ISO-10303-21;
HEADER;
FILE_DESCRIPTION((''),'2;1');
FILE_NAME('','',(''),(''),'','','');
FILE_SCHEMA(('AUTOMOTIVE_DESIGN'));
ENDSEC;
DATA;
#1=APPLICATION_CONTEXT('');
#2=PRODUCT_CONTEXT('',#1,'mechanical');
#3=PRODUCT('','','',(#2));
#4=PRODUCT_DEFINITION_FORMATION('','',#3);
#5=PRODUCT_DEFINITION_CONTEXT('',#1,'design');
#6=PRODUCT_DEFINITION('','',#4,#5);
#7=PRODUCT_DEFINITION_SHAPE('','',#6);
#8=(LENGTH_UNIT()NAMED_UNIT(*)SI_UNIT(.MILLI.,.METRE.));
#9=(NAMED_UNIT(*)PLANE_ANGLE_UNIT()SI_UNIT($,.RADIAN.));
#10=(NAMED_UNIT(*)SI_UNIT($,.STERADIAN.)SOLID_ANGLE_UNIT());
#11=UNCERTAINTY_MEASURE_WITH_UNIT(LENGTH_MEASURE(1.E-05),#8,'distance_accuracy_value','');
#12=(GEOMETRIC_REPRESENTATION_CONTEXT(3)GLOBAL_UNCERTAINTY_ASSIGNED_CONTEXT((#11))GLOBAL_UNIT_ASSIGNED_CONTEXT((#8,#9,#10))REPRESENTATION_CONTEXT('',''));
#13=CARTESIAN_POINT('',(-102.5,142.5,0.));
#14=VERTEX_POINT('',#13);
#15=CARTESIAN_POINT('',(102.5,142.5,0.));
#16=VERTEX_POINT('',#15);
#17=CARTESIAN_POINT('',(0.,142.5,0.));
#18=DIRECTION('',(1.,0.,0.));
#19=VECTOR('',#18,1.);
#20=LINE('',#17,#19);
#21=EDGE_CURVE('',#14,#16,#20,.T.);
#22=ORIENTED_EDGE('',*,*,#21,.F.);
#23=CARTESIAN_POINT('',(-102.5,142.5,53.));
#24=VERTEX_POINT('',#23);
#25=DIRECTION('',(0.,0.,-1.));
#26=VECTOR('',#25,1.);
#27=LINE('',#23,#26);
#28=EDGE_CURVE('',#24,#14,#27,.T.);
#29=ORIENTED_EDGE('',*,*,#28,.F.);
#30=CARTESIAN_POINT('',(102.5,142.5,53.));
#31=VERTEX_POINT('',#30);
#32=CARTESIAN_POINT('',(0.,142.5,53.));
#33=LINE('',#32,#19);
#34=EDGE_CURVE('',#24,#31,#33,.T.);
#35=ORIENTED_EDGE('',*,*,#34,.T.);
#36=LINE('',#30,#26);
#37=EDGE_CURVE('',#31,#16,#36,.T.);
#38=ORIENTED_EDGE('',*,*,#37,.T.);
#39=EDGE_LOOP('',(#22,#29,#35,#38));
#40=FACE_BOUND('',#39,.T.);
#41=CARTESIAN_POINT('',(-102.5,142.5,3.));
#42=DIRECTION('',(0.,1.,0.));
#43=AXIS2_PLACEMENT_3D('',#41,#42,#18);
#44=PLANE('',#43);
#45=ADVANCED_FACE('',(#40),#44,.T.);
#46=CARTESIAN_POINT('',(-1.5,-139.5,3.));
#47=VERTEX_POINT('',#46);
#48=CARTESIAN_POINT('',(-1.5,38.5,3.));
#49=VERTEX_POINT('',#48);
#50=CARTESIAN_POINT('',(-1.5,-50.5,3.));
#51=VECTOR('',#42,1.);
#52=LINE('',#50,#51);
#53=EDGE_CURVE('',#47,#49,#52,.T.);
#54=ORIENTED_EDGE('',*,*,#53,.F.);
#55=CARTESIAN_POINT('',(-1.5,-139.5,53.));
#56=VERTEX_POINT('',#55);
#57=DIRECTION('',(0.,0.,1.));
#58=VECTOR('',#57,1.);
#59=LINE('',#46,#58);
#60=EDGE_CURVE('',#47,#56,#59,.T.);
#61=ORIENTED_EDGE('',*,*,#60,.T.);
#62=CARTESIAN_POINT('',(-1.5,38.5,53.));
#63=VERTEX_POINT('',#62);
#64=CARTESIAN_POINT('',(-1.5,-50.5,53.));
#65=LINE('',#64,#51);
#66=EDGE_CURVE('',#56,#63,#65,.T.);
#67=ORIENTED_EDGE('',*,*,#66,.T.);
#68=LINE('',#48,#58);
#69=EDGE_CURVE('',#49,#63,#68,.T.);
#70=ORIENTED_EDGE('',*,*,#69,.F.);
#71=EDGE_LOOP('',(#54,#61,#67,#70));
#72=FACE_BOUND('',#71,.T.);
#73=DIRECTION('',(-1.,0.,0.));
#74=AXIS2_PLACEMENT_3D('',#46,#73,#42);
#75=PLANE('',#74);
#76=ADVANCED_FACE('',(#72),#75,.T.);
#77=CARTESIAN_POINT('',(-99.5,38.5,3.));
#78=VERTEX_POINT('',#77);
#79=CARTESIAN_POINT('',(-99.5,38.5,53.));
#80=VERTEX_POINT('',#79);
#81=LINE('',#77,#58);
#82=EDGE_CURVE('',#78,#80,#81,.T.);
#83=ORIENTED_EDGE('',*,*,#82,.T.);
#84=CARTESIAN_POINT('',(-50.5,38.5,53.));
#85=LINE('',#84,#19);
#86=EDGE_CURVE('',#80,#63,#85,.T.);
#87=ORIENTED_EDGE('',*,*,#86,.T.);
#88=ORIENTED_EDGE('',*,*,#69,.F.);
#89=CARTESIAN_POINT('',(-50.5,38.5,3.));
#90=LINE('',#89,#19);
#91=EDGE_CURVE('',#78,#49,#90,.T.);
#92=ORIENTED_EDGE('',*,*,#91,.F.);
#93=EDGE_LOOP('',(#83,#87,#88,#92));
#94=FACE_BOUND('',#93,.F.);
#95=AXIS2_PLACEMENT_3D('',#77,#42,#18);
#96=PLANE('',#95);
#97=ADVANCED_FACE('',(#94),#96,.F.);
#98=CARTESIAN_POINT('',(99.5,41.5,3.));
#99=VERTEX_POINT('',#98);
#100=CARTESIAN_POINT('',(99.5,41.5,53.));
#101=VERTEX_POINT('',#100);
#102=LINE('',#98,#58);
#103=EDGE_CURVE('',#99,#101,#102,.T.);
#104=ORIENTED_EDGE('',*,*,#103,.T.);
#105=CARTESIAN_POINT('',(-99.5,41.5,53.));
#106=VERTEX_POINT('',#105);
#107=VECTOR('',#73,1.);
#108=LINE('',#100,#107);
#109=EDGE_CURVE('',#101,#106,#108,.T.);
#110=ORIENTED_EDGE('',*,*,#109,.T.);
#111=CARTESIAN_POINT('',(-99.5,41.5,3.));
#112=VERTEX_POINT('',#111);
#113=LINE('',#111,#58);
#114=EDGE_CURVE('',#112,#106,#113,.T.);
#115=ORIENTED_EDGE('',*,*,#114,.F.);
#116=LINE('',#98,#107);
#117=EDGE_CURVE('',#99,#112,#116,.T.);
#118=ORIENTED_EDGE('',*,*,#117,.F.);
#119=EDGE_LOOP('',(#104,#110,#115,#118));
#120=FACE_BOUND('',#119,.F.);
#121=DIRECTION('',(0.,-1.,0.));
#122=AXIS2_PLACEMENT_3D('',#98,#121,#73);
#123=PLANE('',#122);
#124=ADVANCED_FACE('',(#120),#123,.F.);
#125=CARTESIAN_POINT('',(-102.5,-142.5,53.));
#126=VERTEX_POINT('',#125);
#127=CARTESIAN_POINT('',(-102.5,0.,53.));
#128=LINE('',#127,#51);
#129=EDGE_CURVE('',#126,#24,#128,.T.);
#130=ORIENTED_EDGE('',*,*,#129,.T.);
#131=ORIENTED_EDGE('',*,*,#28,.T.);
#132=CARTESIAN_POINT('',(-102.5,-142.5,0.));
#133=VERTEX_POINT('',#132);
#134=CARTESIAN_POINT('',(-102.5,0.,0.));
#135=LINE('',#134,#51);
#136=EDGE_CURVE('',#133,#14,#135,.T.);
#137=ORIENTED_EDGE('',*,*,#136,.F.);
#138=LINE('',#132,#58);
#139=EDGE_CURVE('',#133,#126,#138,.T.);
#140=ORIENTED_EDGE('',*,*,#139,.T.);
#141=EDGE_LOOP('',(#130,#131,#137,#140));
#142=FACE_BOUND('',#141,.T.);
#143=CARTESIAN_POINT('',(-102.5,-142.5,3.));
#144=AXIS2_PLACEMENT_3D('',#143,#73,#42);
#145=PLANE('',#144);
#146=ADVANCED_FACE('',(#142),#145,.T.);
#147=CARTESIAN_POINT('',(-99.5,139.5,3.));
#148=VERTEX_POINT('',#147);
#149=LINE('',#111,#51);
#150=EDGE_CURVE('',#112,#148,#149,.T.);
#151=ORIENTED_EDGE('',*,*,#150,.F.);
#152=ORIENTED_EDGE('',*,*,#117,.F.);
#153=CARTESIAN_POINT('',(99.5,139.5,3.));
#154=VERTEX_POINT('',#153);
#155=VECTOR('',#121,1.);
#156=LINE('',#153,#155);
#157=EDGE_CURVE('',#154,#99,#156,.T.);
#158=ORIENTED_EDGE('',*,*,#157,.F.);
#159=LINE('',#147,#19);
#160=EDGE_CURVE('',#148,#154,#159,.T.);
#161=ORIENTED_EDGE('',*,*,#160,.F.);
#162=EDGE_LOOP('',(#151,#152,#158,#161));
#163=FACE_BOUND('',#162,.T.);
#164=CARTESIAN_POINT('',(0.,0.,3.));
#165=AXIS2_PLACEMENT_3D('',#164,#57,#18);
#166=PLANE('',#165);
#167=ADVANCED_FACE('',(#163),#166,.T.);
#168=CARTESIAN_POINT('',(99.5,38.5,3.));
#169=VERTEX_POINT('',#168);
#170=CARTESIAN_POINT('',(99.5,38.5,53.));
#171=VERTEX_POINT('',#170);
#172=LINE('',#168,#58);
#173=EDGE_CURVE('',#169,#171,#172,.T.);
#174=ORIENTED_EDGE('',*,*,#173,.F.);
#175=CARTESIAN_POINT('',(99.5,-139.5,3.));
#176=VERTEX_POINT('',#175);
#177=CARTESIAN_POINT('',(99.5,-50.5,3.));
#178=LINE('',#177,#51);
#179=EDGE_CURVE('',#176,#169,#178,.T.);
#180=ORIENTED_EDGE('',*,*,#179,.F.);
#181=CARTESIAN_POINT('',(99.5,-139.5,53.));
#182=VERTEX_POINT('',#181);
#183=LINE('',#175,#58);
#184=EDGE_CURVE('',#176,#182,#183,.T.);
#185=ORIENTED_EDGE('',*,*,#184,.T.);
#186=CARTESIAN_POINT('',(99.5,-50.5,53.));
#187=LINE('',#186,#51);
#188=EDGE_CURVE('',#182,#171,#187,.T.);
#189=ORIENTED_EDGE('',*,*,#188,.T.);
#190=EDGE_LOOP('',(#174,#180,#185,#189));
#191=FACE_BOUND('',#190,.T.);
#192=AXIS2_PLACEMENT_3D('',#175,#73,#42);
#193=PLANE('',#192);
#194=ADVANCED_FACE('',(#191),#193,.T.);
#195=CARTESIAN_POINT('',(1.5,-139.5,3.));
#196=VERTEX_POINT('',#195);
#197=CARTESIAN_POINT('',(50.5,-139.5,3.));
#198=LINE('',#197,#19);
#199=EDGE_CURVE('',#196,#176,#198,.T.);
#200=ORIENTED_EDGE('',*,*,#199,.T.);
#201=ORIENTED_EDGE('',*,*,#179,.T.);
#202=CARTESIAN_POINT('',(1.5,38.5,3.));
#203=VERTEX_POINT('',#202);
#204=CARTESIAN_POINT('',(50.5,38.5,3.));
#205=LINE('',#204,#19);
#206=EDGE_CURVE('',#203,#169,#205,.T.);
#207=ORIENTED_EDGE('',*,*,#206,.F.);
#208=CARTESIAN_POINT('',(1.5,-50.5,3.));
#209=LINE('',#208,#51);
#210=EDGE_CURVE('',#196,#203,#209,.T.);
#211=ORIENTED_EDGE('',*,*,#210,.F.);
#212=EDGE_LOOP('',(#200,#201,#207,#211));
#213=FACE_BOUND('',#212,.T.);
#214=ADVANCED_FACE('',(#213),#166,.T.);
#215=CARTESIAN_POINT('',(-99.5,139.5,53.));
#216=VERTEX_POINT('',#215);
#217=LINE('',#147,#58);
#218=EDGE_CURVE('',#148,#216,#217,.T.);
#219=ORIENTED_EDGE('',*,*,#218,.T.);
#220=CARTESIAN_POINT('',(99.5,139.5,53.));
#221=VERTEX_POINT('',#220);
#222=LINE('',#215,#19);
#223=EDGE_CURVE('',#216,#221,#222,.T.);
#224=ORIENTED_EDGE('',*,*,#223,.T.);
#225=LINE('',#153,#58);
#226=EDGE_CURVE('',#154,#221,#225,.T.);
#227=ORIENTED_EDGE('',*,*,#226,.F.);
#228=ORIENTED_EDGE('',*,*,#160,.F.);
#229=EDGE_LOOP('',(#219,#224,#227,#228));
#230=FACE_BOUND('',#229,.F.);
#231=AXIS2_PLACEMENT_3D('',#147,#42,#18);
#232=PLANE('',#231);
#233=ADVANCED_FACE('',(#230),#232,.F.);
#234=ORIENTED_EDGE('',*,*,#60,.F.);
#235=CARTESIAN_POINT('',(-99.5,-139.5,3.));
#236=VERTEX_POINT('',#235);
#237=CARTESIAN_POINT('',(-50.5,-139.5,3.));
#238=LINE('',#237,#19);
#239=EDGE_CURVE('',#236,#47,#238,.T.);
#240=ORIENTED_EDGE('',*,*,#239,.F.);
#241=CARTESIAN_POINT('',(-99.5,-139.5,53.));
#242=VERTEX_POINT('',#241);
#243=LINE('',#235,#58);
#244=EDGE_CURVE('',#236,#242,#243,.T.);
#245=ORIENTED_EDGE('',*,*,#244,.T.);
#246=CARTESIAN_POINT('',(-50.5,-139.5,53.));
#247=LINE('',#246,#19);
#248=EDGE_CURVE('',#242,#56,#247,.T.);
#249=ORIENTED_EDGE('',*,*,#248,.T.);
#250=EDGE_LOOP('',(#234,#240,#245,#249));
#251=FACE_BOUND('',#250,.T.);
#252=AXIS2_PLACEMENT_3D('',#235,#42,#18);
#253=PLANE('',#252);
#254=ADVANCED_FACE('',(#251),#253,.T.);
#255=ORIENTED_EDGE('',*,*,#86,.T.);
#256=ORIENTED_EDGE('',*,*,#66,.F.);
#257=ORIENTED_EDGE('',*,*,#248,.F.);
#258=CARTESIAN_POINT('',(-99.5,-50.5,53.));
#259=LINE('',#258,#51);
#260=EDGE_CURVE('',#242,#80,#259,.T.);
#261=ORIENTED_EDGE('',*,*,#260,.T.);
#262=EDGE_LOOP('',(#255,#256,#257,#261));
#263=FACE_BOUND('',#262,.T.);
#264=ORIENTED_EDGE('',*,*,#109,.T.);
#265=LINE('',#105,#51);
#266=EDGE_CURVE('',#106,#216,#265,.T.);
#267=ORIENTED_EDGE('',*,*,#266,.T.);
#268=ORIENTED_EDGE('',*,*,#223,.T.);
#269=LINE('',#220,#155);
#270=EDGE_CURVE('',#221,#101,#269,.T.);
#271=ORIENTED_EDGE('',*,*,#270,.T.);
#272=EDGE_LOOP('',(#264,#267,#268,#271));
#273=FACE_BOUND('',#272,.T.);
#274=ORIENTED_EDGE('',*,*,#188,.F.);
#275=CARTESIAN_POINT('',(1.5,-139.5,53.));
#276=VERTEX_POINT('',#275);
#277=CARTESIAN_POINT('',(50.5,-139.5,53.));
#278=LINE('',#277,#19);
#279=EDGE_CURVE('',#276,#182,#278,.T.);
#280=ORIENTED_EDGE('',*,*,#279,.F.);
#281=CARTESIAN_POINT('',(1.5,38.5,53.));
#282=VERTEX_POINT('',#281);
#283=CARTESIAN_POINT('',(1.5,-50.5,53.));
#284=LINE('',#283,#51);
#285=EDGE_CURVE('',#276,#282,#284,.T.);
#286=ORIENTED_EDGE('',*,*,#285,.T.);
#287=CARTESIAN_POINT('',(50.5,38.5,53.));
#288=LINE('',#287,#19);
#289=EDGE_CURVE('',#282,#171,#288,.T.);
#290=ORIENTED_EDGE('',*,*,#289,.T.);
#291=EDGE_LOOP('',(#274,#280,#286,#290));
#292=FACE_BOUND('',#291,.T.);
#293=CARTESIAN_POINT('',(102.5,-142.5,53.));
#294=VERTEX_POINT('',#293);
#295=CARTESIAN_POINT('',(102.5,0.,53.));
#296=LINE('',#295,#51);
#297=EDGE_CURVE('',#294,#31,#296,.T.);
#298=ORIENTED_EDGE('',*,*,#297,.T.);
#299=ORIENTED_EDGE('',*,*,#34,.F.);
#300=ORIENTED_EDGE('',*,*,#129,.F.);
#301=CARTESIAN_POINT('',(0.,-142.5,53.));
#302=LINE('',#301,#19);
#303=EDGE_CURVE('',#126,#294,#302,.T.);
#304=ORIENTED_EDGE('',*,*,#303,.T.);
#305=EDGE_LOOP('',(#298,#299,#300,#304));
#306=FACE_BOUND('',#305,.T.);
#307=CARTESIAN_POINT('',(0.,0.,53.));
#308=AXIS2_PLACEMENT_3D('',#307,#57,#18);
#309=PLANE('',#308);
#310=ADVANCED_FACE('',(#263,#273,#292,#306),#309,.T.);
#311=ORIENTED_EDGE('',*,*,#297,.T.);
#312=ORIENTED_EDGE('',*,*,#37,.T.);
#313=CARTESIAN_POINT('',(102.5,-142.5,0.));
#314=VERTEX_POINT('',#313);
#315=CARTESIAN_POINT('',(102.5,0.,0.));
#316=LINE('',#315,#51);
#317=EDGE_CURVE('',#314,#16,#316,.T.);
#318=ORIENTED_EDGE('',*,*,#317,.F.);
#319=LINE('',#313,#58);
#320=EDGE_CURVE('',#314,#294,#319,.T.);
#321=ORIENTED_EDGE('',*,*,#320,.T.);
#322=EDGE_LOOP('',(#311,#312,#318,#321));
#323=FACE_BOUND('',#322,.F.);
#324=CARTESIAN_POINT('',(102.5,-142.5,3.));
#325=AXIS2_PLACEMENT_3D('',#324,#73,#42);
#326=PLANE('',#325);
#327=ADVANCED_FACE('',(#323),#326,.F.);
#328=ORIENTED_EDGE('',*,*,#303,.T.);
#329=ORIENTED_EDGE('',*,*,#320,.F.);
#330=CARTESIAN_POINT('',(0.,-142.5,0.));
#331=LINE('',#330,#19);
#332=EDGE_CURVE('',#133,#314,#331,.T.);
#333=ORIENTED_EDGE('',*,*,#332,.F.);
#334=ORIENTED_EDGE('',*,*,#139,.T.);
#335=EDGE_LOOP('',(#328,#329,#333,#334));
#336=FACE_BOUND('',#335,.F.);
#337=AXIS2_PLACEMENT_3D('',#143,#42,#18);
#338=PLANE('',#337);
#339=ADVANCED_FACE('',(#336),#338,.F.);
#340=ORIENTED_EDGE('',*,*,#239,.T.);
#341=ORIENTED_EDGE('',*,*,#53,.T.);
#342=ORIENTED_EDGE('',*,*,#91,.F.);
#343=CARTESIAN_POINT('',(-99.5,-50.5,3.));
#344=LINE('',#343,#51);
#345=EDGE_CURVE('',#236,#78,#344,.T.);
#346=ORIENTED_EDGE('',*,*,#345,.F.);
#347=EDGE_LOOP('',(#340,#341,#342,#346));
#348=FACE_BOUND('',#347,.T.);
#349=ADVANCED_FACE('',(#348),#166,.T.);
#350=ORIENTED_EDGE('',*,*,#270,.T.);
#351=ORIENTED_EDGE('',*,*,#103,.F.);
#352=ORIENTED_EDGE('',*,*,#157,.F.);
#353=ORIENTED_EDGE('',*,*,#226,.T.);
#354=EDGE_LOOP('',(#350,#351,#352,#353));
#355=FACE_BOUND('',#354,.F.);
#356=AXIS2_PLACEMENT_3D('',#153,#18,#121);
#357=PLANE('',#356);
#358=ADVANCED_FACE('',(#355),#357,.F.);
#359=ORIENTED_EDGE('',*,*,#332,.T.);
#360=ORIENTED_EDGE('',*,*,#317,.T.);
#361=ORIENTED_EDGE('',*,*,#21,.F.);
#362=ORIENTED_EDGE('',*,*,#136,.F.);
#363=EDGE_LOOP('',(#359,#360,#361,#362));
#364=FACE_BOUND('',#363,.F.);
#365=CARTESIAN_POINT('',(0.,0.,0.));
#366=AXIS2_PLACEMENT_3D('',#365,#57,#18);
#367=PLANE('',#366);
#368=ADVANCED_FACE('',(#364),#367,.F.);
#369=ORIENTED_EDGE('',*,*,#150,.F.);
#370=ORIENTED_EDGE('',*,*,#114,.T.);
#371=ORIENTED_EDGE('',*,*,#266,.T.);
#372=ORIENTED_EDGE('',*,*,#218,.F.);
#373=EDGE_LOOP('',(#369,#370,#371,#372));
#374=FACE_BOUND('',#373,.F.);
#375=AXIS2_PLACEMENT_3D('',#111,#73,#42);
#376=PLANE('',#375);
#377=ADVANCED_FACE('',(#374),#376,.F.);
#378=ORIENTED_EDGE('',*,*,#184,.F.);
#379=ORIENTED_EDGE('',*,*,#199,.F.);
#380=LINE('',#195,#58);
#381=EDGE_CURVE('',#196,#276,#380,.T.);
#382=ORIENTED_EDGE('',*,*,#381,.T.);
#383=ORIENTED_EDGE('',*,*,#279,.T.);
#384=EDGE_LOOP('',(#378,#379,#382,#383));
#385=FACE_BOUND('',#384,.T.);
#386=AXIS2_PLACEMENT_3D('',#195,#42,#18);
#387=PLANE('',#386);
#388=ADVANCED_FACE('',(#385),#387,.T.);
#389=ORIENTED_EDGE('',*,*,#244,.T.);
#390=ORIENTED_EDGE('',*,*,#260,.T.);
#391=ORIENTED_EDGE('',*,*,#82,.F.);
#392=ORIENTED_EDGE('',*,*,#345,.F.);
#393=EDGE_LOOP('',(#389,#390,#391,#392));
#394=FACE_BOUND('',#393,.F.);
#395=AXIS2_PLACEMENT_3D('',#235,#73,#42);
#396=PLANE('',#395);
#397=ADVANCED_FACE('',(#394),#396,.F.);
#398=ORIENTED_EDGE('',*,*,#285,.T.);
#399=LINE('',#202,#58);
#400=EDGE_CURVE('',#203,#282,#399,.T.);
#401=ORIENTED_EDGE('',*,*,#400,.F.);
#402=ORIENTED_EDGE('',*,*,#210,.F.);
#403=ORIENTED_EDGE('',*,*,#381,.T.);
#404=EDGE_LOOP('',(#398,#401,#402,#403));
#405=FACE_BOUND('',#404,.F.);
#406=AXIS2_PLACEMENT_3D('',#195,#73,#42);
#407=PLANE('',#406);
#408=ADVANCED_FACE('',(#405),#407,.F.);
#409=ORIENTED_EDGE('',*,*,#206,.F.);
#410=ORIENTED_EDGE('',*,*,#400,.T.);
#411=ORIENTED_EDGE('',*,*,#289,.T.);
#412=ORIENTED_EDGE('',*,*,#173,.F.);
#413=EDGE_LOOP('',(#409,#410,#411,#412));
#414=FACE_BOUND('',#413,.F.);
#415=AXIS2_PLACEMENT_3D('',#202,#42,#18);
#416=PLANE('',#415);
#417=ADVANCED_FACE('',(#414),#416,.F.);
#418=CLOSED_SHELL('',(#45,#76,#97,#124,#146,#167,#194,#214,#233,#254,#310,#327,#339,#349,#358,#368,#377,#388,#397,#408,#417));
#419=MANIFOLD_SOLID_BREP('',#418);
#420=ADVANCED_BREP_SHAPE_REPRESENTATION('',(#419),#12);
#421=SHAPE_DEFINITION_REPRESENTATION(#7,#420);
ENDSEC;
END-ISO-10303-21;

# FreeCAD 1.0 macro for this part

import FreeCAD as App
import Part
import Sketcher

V = App.Vector

doc = App.newDocument("Part")
body = doc.addObject("PartDesign::Body", "Body")

# Sketch on XY plane
sketch1 = body.newObject("Sketcher::SketchObject", "Sketch")
sketch1.AttachmentSupport = (doc.getObject("XY_Plane"), [""])
sketch1.MapMode = "FlatFace"
sketch1.addGeometry(Part.LineSegment(V(-102.5, 142.5, 0), V(-102.5, -142.5, 0)), False)
sketch1.addGeometry(Part.LineSegment(V(-102.5, -142.5, 0), V(102.5, -142.5, 0)), False)
sketch1.addGeometry(Part.LineSegment(V(102.5, -142.5, 0), V(102.5, 142.5, 0)), False)
sketch1.addGeometry(Part.LineSegment(V(102.5, 142.5, 0), V(-102.5, 142.5, 0)), False)
sketch1.addConstraint(Sketcher.Constraint("Coincident", 0, 2, 1, 1))
sketch1.addConstraint(Sketcher.Constraint("Coincident", 1, 2, 2, 1))
sketch1.addConstraint(Sketcher.Constraint("Coincident", 2, 2, 3, 1))
sketch1.addConstraint(Sketcher.Constraint("Coincident", 3, 2, 0, 1))
sketch1.addConstraint(Sketcher.Constraint("Vertical", 0))
sketch1.addConstraint(Sketcher.Constraint("Horizontal", 1))
sketch1.addConstraint(Sketcher.Constraint("Vertical", 2))
sketch1.addConstraint(Sketcher.Constraint("Horizontal", 3))
sketch1.addConstraint(Sketcher.Constraint("Symmetric", 0, 2, 2, 2, -1, 1))
sketch1.addConstraint(Sketcher.Constraint("DistanceX", 1, 1, 1, 2, 205.0))
sketch1.addConstraint(Sketcher.Constraint("DistanceY", 0, 2, 0, 1, 285.0))
pad1 = body.newObject("PartDesign::Pad", "Pad")
pad1.Profile = sketch1
pad1.Length = 3

# Sketch on XY plane
sketch2 = body.newObject("Sketcher::SketchObject", "Sketch001")
sketch2.AttachmentSupport = (doc.getObject("XY_Plane"), [""])
sketch2.MapMode = "FlatFace"
sketch2.AttachmentOffset = App.Placement(V(0, 0, 3), App.Rotation())
sketch2.addGeometry(Part.LineSegment(V(-102.5, 142.5, 0), V(-102.5, -142.5, 0)), False)
sketch2.addGeometry(Part.LineSegment(V(-102.5, -142.5, 0), V(102.5, -142.5, 0)), False)
sketch2.addGeometry(Part.LineSegment(V(102.5, -142.5, 0), V(102.5, 142.5, 0)), False)
sketch2.addGeometry(Part.LineSegment(V(102.5, 142.5, 0), V(-102.5, 142.5, 0)), False)
sketch2.addGeometry(Part.LineSegment(V(-1.5, -139.5, 0), V(-99.5, -139.5, 0)), False)
sketch2.addGeometry(Part.LineSegment(V(-99.5, -139.5, 0), V(-99.5, 38.5, 0)), False)
sketch2.addGeometry(Part.LineSegment(V(-99.5, 38.5, 0), V(-1.5, 38.5, 0)), False)
sketch2.addGeometry(Part.LineSegment(V(-1.5, 38.5, 0), V(-1.5, -139.5, 0)), False)
sketch2.addGeometry(Part.LineSegment(V(99.5, -139.5, 0), V(1.5, -139.5, 0)), False)
sketch2.addGeometry(Part.LineSegment(V(1.5, -139.5, 0), V(1.5, 38.5, 0)), False)
sketch2.addGeometry(Part.LineSegment(V(1.5, 38.5, 0), V(99.5, 38.5, 0)), False)
sketch2.addGeometry(Part.LineSegment(V(99.5, 38.5, 0), V(99.5, -139.5, 0)), False)
sketch2.addGeometry(Part.LineSegment(V(-99.5, 41.5, 0), V(-99.5, 139.5, 0)), False)
sketch2.addGeometry(Part.LineSegment(V(-99.5, 139.5, 0), V(99.5, 139.5, 0)), False)
sketch2.addGeometry(Part.LineSegment(V(99.5, 139.5, 0), V(99.5, 41.5, 0)), False)
sketch2.addGeometry(Part.LineSegment(V(99.5, 41.5, 0), V(-99.5, 41.5, 0)), False)
sketch2.addConstraint(Sketcher.Constraint("Coincident", 0, 2, 1, 1))
sketch2.addConstraint(Sketcher.Constraint("Coincident", 1, 2, 2, 1))
sketch2.addConstraint(Sketcher.Constraint("Coincident", 2, 2, 3, 1))
sketch2.addConstraint(Sketcher.Constraint("Coincident", 3, 2, 0, 1))
sketch2.addConstraint(Sketcher.Constraint("Coincident", 4, 2, 5, 1))
sketch2.addConstraint(Sketcher.Constraint("Coincident", 5, 2, 6, 1))
sketch2.addConstraint(Sketcher.Constraint("Coincident", 6, 2, 7, 1))
sketch2.addConstraint(Sketcher.Constraint("Coincident", 7, 2, 4, 1))
sketch2.addConstraint(Sketcher.Constraint("Coincident", 8, 2, 9, 1))
sketch2.addConstraint(Sketcher.Constraint("Coincident", 9, 2, 10, 1))
sketch2.addConstraint(Sketcher.Constraint("Coincident", 10, 2, 11, 1))
sketch2.addConstraint(Sketcher.Constraint("Coincident", 11, 2, 8, 1))
sketch2.addConstraint(Sketcher.Constraint("Coincident", 12, 2, 13, 1))
sketch2.addConstraint(Sketcher.Constraint("Coincident", 13, 2, 14, 1))
sketch2.addConstraint(Sketcher.Constraint("Coincident", 14, 2, 15, 1))
sketch2.addConstraint(Sketcher.Constraint("Coincident", 15, 2, 12, 1))
sketch2.addConstraint(Sketcher.Constraint("Vertical", 0))
sketch2.addConstraint(Sketcher.Constraint("Horizontal", 1))
sketch2.addConstraint(Sketcher.Constraint("Vertical", 2))
sketch2.addConstraint(Sketcher.Constraint("Horizontal", 3))
sketch2.addConstraint(Sketcher.Constraint("Horizontal", 4))
sketch2.addConstraint(Sketcher.Constraint("Vertical", 5))
sketch2.addConstraint(Sketcher.Constraint("Horizontal", 6))
sketch2.addConstraint(Sketcher.Constraint("Vertical", 7))
sketch2.addConstraint(Sketcher.Constraint("Horizontal", 8))
sketch2.addConstraint(Sketcher.Constraint("Vertical", 9))
sketch2.addConstraint(Sketcher.Constraint("Horizontal", 10))
sketch2.addConstraint(Sketcher.Constraint("Vertical", 11))
sketch2.addConstraint(Sketcher.Constraint("Vertical", 12))
sketch2.addConstraint(Sketcher.Constraint("Horizontal", 13))
sketch2.addConstraint(Sketcher.Constraint("Vertical", 14))
sketch2.addConstraint(Sketcher.Constraint("Horizontal", 15))
sketch2.addConstraint(Sketcher.Constraint("Symmetric", 0, 2, 2, 2, -1, 1))
sketch2.addConstraint(Sketcher.Constraint("Symmetric", 11, 2, 12, 2, -1, 1))
sketch2.addConstraint(Sketcher.Constraint("Symmetric", 4, 2, 13, 2, -1, 1))
sketch2.addConstraint(Sketcher.Constraint("Symmetric", 6, 2, 9, 2, -2))
sketch2.addConstraint(Sketcher.Constraint("Vertical", 5, 2, 12, 2))
sketch2.addConstraint(Sketcher.Constraint("Equal", 10, 12))
sketch2.addConstraint(Sketcher.Constraint("DistanceX", 1, 1, 1, 2, 205.0))
sketch2.addConstraint(Sketcher.Constraint("DistanceX", 4, 2, 4, 1, 98.0))
sketch2.addConstraint(Sketcher.Constraint("DistanceX", 13, 1, 13, 2, 199.0))
sketch2.addConstraint(Sketcher.Constraint("DistanceY", 0, 2, 0, 1, 285.0))
sketch2.addConstraint(Sketcher.Constraint("DistanceY", 5, 1, 5, 2, 178.0))
sketch2.addConstraint(Sketcher.Constraint("DistanceY", 0, 2, 4, 2, 3.0))
pad2 = body.newObject("PartDesign::Pad", "Pad001")
pad2.Profile = sketch2
pad2.Length = 50

doc.recompute()
